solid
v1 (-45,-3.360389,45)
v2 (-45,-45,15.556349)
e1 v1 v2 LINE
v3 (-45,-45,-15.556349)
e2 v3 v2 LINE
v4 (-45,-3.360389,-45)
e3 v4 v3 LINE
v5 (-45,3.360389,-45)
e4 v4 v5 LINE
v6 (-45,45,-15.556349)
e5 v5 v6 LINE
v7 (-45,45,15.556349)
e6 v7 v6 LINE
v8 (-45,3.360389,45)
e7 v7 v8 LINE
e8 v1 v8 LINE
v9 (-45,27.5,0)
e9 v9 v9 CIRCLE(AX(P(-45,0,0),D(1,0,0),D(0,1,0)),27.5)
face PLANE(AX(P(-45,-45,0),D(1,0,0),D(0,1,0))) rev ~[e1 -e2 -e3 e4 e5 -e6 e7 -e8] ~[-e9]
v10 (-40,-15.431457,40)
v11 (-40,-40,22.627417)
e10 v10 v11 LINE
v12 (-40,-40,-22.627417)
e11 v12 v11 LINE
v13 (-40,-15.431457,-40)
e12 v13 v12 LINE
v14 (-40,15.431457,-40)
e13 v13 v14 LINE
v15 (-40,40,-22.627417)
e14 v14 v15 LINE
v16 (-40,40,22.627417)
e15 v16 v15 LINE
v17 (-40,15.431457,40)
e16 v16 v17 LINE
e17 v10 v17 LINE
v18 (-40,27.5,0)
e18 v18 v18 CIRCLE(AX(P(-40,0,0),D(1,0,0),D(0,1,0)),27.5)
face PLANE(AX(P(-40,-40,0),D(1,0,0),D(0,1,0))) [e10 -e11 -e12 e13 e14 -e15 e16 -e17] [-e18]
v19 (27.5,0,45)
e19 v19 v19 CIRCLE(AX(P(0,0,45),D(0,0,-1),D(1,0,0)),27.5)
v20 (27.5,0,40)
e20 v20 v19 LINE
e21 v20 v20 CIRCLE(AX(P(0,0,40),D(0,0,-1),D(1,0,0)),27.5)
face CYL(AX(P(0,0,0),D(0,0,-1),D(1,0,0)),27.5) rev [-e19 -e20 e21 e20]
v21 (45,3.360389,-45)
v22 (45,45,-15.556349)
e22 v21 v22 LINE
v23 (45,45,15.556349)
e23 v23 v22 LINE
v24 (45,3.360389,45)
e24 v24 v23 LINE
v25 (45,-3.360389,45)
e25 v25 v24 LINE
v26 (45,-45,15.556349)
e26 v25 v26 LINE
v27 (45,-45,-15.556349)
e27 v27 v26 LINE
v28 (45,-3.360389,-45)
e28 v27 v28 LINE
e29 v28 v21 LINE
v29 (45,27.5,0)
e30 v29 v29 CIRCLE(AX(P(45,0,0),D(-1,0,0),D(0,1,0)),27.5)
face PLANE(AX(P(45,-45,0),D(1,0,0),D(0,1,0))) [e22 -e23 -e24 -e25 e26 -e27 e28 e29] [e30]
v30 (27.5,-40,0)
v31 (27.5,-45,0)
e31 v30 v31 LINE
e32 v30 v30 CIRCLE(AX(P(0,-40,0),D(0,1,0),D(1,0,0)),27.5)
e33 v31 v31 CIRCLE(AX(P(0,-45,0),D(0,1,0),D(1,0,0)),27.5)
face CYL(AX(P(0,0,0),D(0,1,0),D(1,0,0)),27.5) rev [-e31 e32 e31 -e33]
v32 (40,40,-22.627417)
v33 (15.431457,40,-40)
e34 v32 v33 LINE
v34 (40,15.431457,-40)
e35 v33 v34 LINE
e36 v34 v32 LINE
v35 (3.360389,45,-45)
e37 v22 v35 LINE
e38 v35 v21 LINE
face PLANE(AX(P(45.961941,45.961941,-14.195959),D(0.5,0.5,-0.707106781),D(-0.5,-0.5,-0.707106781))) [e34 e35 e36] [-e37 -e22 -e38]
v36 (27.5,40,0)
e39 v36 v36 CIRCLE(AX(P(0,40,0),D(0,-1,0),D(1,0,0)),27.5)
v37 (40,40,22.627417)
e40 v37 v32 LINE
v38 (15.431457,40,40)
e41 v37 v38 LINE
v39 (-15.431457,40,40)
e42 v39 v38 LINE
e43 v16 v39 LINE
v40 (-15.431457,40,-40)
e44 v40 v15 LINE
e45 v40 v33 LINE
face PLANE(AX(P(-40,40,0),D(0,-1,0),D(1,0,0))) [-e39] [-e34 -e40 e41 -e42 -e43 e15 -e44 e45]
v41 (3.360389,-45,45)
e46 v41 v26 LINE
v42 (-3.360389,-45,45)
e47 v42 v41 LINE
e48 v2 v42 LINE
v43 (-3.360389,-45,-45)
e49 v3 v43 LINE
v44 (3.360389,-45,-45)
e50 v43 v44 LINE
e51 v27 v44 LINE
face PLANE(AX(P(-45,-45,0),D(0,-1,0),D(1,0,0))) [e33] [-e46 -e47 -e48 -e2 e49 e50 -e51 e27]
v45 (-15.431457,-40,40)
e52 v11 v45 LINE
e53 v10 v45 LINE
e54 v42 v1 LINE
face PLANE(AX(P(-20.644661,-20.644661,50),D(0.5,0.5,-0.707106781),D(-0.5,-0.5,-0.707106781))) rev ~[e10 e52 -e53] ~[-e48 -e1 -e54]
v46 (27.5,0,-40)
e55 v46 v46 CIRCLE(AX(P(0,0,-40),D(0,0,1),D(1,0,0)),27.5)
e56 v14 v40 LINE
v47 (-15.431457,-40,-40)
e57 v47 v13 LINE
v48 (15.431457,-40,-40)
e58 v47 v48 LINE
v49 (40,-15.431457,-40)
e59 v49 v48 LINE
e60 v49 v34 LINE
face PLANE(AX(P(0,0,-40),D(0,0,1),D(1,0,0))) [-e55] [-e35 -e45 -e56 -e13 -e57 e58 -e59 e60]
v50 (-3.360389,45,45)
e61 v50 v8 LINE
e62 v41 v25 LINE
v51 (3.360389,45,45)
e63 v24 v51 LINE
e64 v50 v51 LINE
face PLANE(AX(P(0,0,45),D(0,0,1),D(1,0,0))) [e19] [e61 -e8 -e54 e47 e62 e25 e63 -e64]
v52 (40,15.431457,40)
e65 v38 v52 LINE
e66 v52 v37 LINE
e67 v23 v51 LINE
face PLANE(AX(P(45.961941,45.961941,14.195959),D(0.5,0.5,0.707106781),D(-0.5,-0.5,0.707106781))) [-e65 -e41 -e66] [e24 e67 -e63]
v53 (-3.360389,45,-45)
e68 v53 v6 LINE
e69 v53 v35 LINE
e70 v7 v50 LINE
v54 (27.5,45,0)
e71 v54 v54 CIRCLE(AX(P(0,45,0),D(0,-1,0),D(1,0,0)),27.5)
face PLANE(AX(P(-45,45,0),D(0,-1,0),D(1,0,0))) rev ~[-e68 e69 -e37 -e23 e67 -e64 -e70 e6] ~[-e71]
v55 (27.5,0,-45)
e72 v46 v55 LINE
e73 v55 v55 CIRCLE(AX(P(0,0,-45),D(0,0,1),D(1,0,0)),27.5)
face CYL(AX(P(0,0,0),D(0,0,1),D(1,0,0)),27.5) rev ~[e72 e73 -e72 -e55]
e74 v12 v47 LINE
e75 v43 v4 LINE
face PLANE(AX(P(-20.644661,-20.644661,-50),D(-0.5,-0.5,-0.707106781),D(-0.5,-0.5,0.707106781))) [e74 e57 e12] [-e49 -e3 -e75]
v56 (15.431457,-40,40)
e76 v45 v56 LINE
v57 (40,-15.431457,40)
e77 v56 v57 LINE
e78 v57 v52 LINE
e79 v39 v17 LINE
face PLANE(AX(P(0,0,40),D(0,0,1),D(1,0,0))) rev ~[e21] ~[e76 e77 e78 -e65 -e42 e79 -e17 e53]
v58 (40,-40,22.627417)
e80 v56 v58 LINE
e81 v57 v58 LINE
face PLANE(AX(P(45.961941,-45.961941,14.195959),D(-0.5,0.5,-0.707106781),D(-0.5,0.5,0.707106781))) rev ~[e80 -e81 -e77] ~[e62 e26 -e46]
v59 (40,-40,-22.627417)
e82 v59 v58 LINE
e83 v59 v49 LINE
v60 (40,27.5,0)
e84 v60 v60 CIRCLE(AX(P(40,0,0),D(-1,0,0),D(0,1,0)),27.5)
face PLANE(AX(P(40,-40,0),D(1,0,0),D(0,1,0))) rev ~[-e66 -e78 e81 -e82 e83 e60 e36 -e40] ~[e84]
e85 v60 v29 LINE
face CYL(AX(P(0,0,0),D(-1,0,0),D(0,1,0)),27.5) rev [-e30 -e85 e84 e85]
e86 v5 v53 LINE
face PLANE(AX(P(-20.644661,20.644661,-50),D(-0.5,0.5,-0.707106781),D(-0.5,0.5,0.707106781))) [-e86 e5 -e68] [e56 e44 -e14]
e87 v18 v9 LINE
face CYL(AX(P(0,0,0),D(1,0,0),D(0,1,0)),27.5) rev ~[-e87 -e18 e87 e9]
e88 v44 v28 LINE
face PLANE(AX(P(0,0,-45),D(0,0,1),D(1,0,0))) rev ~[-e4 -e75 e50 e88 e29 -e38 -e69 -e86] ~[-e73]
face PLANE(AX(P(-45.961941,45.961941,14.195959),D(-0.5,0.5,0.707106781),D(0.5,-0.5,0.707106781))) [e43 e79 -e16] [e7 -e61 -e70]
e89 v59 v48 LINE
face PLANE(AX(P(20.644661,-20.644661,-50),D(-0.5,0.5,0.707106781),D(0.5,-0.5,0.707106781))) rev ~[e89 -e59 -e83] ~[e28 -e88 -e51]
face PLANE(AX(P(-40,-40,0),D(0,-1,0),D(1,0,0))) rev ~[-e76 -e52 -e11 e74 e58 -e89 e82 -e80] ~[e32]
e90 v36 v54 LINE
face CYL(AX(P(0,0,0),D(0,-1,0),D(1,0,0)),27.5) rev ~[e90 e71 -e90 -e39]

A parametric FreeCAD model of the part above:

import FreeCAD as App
import Part
import Sketcher
from FreeCAD import Vector
Q = App.Units.Quantity

doc = App.newDocument("Part")
body = doc.addObject("PartDesign::Body", "Body")

# Sketch on XY plane
sketch1 = doc.addObject("Sketcher::SketchObject", "Sketch")
body.addObject(sketch1)
sketch1.AttachmentSupport = (doc.XY_Plane, [""])
sketch1.MapMode = "FlatFace"
sketch1.addGeometry([
    Part.LineSegment(Vector(-45, 45, 0), Vector(-45, -45, 0)),
    Part.LineSegment(Vector(-45, -45, 0), Vector(45, -45, 0)),
    Part.LineSegment(Vector(45, -45, 0), Vector(45, 45, 0)),
    Part.LineSegment(Vector(45, 45, 0), Vector(-45, 45, 0)),
], False)
sketch1.addConstraint([
    Sketcher.Constraint("Coincident", 0, 2, 1, 1),
    Sketcher.Constraint("Coincident", 1, 2, 2, 1),
    Sketcher.Constraint("Coincident", 2, 2, 3, 1),
    Sketcher.Constraint("Coincident", 3, 2, 0, 1),
    Sketcher.Constraint("Vertical", 0),
    Sketcher.Constraint("Horizontal", 1),
    Sketcher.Constraint("Vertical", 2),
    Sketcher.Constraint("Horizontal", 3),
    Sketcher.Constraint("Symmetric", 0, 2, 2, 2, -1, 1),
    Sketcher.Constraint("Equal", 3, 0),
    Sketcher.Constraint("DistanceX", 1, 1, 1, 2, Q("90 mm")),
])
pad1 = doc.addObject("PartDesign::Pad", "Pad")
body.addObject(pad1)
pad1.Profile = sketch1
pad1.Length = 90
pad1.Midplane = True

# Sketch on XY plane
sketch2 = doc.addObject("Sketcher::SketchObject", "Sketch001")
body.addObject(sketch2)
sketch2.AttachmentSupport = (doc.XY_Plane, [""])
sketch2.MapMode = "FlatFace"
sketch2.addGeometry([
    Part.LineSegment(Vector(-40, 40, 0), Vector(-40, -40, 0)),
    Part.LineSegment(Vector(-40, -40, 0), Vector(40, -40, 0)),
    Part.LineSegment(Vector(40, -40, 0), Vector(40, 40, 0)),
    Part.LineSegment(Vector(40, 40, 0), Vector(-40, 40, 0)),
], False)
sketch2.addConstraint([
    Sketcher.Constraint("Coincident", 0, 2, 1, 1),
    Sketcher.Constraint("Coincident", 1, 2, 2, 1),
    Sketcher.Constraint("Coincident", 2, 2, 3, 1),
    Sketcher.Constraint("Coincident", 3, 2, 0, 1),
    Sketcher.Constraint("Vertical", 0),
    Sketcher.Constraint("Horizontal", 1),
    Sketcher.Constraint("Vertical", 2),
    Sketcher.Constraint("Horizontal", 3),
    Sketcher.Constraint("Symmetric", 0, 2, 2, 2, -1, 1),
    Sketcher.Constraint("Equal", 3, 0),
    Sketcher.Constraint("DistanceX", 1, 1, 1, 2, Q("80 mm")),
])
pocket1 = doc.addObject("PartDesign::Pocket", "Pocket")
body.addObject(pocket1)
pocket1.Profile = sketch2
pocket1.Length = 80
pocket1.Midplane = True

# Sketch on XY plane
sketch3 = doc.addObject("Sketcher::SketchObject", "Sketch002")
body.addObject(sketch3)
sketch3.AttachmentSupport = (doc.XY_Plane, [""])
sketch3.MapMode = "FlatFace"
sketch3.addGeometry(Part.Circle(Vector(0, 0, 0), Vector(0, 0, 1), 28), False)
sketch3.addConstraint([
    Sketcher.Constraint("Coincident", 0, 3, -1, 1),
    Sketcher.Constraint("Diameter", 0, Q("55 mm")),
])
pocket2 = doc.addObject("PartDesign::Pocket", "Pocket001")
body.addObject(pocket2)
pocket2.Profile = sketch3
pocket2.Type = "ThroughAll"
pocket2.Midplane = True

# Sketch on XZ plane
sketch4 = doc.addObject("Sketcher::SketchObject", "Sketch003")
body.addObject(sketch4)
sketch4.AttachmentSupport = (doc.XZ_Plane, [""])
sketch4.MapMode = "FlatFace"
sketch4.addGeometry(Part.Circle(Vector(0, 0, 0), Vector(0, 0, 1), 28), False)
sketch4.addConstraint([
    Sketcher.Constraint("Coincident", 0, 3, -1, 1),
    Sketcher.Constraint("Diameter", 0, Q("55 mm")),
])
pocket3 = doc.addObject("PartDesign::Pocket", "Pocket002")
body.addObject(pocket3)
pocket3.Profile = sketch4
pocket3.Type = "ThroughAll"
pocket3.Midplane = True

# Sketch on YZ plane
sketch5 = doc.addObject("Sketcher::SketchObject", "Sketch004")
body.addObject(sketch5)
sketch5.AttachmentSupport = (doc.YZ_Plane, [""])
sketch5.MapMode = "FlatFace"
sketch5.addGeometry(Part.Circle(Vector(0, 0, 0), Vector(0, 0, 1), 28), False)
sketch5.addConstraint([
    Sketcher.Constraint("Coincident", 0, 3, -1, 1),
    Sketcher.Constraint("Diameter", 0, Q("55 mm")),
])
pocket4 = doc.addObject("PartDesign::Pocket", "Pocket003")
body.addObject(pocket4)
pocket4.Profile = sketch5
pocket4.Type = "ThroughAll"
pocket4.Midplane = True

# Sketch on an angled plane
sketch6 = doc.addObject("Sketcher::SketchObject", "Sketch005")
body.addObject(sketch6)
sketch6.Placement = App.Placement(Vector(0, 0, 0), App.Rotation(Vector(0.707106781, 0.707106781, 0), Vector(0, 0, 0.999999999), Vector(0.707106781, -0.707106781, 0), "ZXY"))
sketch6.addGeometry([
    Part.LineSegment(Vector(-65, 50, 0), Vector(-65, 14, 0)),  # 0
    Part.LineSegment(Vector(-65, 14, 0), Vector(-29, 50, 0)),  # 1
    Part.LineSegment(Vector(-29, 50, 0), Vector(-65, 50, 0)),  # 2
    Part.LineSegment(Vector(65, 50, 0), Vector(29, 50, 0)),  # 3
    Part.LineSegment(Vector(29, 50, 0), Vector(65, 14, 0)),  # 4
    Part.LineSegment(Vector(65, 14, 0), Vector(65, 50, 0)),  # 5
    Part.LineSegment(Vector(-65, -14, 0), Vector(-65, -50, 0)),  # 6
    Part.LineSegment(Vector(-65, -50, 0), Vector(-29, -50, 0)),  # 7
    Part.LineSegment(Vector(-29, -50, 0), Vector(-65, -14, 0)),  # 8
    Part.LineSegment(Vector(29, -50, 0), Vector(65, -50, 0)),  # 9
    Part.LineSegment(Vector(65, -50, 0), Vector(65, -14, 0)),  # 10
    Part.LineSegment(Vector(65, -14, 0), Vector(29, -50, 0)),  # 11
], False)
sketch6.addConstraint([
    Sketcher.Constraint("Coincident", 0, 2, 1, 1),
    Sketcher.Constraint("Coincident", 1, 2, 2, 1),
    Sketcher.Constraint("Coincident", 2, 2, 0, 1),
    Sketcher.Constraint("Coincident", 3, 2, 4, 1),
    Sketcher.Constraint("Coincident", 4, 2, 5, 1),
    Sketcher.Constraint("Coincident", 5, 2, 3, 1),
    Sketcher.Constraint("Coincident", 6, 2, 7, 1),
    Sketcher.Constraint("Coincident", 7, 2, 8, 1),
    Sketcher.Constraint("Coincident", 8, 2, 6, 1),
    Sketcher.Constraint("Coincident", 9, 2, 10, 1),
    Sketcher.Constraint("Coincident", 10, 2, 11, 1),
    Sketcher.Constraint("Coincident", 11, 2, 9, 1),
    Sketcher.Constraint("Vertical", 0),
    Sketcher.Constraint("Horizontal", 2),
    Sketcher.Constraint("Horizontal", 3),
    Sketcher.Constraint("Vertical", 5),
    Sketcher.Constraint("Vertical", 6),
    Sketcher.Constraint("Horizontal", 7),
    Sketcher.Constraint("Horizontal", 9),
    Sketcher.Constraint("Vertical", 10),
    Sketcher.Constraint("Symmetric", 5, 2, 6, 2, -1, 1),
    Sketcher.Constraint("Symmetric", 2, 2, 9, 2, -1, 1),
    Sketcher.Constraint("Symmetric", 1, 2, 3, 2, -2),
    Sketcher.Constraint("Symmetric", 0, 2, 4, 2, -2),
    Sketcher.Constraint("Perpendicular", 1, 4),
    Sketcher.Constraint("Parallel", 4, 8),
    Sketcher.Constraint("Perpendicular", 8, 11),
    Sketcher.Constraint("Horizontal", 8, 2, 10, 2),
    Sketcher.Constraint("Vertical", 1, 2, 7, 2),
    Sketcher.Constraint("DistanceX", 0, 2, -1, 1, Q("65 mm")),
    Sketcher.Constraint("DistanceY", -1, 1, 1, 2, Q("50 mm")),
    Sketcher.Constraint("DistanceX", 2, 2, 2, 1, Q("35.804041 mm")),
])
pocket5 = doc.addObject("PartDesign::Pocket", "Pocket004")
body.addObject(pocket5)
pocket5.Profile = sketch6
pocket5.Type = "ThroughAll"
pocket5.Midplane = True

# Sketch on an angled plane
sketch7 = doc.addObject("Sketcher::SketchObject", "Sketch006")
body.addObject(sketch7)
sketch7.Placement = App.Placement(Vector(0, 0, 0), App.Rotation(Vector(0.707106781, -0.707106781, 0), Vector(0, 0, 0.999999999), Vector(-0.707106781, -0.707106781, 0), "ZXY"))
sketch7.addGeometry([
    Part.LineSegment(Vector(-65, 50, 0), Vector(-65, 14, 0)),  # 0
    Part.LineSegment(Vector(-65, 14, 0), Vector(-29, 50, 0)),  # 1
    Part.LineSegment(Vector(-29, 50, 0), Vector(-65, 50, 0)),  # 2
    Part.LineSegment(Vector(65, 50, 0), Vector(29, 50, 0)),  # 3
    Part.LineSegment(Vector(29, 50, 0), Vector(65, 14, 0)),  # 4
    Part.LineSegment(Vector(65, 14, 0), Vector(65, 50, 0)),  # 5
    Part.LineSegment(Vector(65, -50, 0), Vector(65, -14, 0)),  # 6
    Part.LineSegment(Vector(65, -14, 0), Vector(29, -50, 0)),  # 7
    Part.LineSegment(Vector(29, -50, 0), Vector(65, -50, 0)),  # 8
    Part.LineSegment(Vector(-65, -14, 0), Vector(-65, -50, 0)),  # 9
    Part.LineSegment(Vector(-65, -50, 0), Vector(-29, -50, 0)),  # 10
    Part.LineSegment(Vector(-29, -50, 0), Vector(-65, -14, 0)),  # 11
], False)
sketch7.addConstraint([
    Sketcher.Constraint("Coincident", 0, 2, 1, 1),
    Sketcher.Constraint("Coincident", 1, 2, 2, 1),
    Sketcher.Constraint("Coincident", 2, 2, 0, 1),
    Sketcher.Constraint("Coincident", 3, 2, 4, 1),
    Sketcher.Constraint("Coincident", 4, 2, 5, 1),
    Sketcher.Constraint("Coincident", 5, 2, 3, 1),
    Sketcher.Constraint("Coincident", 6, 2, 7, 1),
    Sketcher.Constraint("Coincident", 7, 2, 8, 1),
    Sketcher.Constraint("Coincident", 8, 2, 6, 1),
    Sketcher.Constraint("Coincident", 9, 2, 10, 1),
    Sketcher.Constraint("Coincident", 10, 2, 11, 1),
    Sketcher.Constraint("Coincident", 11, 2, 9, 1),
    Sketcher.Constraint("Vertical", 0),
    Sketcher.Constraint("Horizontal", 2),
    Sketcher.Constraint("Horizontal", 3),
    Sketcher.Constraint("Vertical", 5),
    Sketcher.Constraint("Vertical", 6),
    Sketcher.Constraint("Horizontal", 8),
    Sketcher.Constraint("Vertical", 9),
    Sketcher.Constraint("Horizontal", 10),
    Sketcher.Constraint("Symmetric", 0, 2, 6, 2, -1, 1),
    Sketcher.Constraint("Symmetric", 1, 2, 7, 2, -1, 1),
    Sketcher.Constraint("Symmetric", 5, 2, 9, 2, -1, 1),
    Sketcher.Constraint("Symmetric", 1, 2, 3, 2, -2),
    Sketcher.Constraint("Symmetric", 0, 2, 4, 2, -2),
    Sketcher.Constraint("Perpendicular", 1, 4),
    Sketcher.Constraint("Perpendicular", 7, 11),
    Sketcher.Constraint("Horizontal", 6, 2, 11, 2),
    Sketcher.Constraint("DistanceX", 0, 2, -1, 1, Q("65 mm")),
    Sketcher.Constraint("DistanceY", -1, 1, 1, 2, Q("50 mm")),
    Sketcher.Constraint("DistanceX", 2, 2, 2, 1, Q("35.804041 mm")),
])
pocket6 = doc.addObject("PartDesign::Pocket", "Pocket005")
body.addObject(pocket6)
pocket6.Profile = sketch7
pocket6.Type = "ThroughAll"
pocket6.Midplane = True

doc.recompute()
